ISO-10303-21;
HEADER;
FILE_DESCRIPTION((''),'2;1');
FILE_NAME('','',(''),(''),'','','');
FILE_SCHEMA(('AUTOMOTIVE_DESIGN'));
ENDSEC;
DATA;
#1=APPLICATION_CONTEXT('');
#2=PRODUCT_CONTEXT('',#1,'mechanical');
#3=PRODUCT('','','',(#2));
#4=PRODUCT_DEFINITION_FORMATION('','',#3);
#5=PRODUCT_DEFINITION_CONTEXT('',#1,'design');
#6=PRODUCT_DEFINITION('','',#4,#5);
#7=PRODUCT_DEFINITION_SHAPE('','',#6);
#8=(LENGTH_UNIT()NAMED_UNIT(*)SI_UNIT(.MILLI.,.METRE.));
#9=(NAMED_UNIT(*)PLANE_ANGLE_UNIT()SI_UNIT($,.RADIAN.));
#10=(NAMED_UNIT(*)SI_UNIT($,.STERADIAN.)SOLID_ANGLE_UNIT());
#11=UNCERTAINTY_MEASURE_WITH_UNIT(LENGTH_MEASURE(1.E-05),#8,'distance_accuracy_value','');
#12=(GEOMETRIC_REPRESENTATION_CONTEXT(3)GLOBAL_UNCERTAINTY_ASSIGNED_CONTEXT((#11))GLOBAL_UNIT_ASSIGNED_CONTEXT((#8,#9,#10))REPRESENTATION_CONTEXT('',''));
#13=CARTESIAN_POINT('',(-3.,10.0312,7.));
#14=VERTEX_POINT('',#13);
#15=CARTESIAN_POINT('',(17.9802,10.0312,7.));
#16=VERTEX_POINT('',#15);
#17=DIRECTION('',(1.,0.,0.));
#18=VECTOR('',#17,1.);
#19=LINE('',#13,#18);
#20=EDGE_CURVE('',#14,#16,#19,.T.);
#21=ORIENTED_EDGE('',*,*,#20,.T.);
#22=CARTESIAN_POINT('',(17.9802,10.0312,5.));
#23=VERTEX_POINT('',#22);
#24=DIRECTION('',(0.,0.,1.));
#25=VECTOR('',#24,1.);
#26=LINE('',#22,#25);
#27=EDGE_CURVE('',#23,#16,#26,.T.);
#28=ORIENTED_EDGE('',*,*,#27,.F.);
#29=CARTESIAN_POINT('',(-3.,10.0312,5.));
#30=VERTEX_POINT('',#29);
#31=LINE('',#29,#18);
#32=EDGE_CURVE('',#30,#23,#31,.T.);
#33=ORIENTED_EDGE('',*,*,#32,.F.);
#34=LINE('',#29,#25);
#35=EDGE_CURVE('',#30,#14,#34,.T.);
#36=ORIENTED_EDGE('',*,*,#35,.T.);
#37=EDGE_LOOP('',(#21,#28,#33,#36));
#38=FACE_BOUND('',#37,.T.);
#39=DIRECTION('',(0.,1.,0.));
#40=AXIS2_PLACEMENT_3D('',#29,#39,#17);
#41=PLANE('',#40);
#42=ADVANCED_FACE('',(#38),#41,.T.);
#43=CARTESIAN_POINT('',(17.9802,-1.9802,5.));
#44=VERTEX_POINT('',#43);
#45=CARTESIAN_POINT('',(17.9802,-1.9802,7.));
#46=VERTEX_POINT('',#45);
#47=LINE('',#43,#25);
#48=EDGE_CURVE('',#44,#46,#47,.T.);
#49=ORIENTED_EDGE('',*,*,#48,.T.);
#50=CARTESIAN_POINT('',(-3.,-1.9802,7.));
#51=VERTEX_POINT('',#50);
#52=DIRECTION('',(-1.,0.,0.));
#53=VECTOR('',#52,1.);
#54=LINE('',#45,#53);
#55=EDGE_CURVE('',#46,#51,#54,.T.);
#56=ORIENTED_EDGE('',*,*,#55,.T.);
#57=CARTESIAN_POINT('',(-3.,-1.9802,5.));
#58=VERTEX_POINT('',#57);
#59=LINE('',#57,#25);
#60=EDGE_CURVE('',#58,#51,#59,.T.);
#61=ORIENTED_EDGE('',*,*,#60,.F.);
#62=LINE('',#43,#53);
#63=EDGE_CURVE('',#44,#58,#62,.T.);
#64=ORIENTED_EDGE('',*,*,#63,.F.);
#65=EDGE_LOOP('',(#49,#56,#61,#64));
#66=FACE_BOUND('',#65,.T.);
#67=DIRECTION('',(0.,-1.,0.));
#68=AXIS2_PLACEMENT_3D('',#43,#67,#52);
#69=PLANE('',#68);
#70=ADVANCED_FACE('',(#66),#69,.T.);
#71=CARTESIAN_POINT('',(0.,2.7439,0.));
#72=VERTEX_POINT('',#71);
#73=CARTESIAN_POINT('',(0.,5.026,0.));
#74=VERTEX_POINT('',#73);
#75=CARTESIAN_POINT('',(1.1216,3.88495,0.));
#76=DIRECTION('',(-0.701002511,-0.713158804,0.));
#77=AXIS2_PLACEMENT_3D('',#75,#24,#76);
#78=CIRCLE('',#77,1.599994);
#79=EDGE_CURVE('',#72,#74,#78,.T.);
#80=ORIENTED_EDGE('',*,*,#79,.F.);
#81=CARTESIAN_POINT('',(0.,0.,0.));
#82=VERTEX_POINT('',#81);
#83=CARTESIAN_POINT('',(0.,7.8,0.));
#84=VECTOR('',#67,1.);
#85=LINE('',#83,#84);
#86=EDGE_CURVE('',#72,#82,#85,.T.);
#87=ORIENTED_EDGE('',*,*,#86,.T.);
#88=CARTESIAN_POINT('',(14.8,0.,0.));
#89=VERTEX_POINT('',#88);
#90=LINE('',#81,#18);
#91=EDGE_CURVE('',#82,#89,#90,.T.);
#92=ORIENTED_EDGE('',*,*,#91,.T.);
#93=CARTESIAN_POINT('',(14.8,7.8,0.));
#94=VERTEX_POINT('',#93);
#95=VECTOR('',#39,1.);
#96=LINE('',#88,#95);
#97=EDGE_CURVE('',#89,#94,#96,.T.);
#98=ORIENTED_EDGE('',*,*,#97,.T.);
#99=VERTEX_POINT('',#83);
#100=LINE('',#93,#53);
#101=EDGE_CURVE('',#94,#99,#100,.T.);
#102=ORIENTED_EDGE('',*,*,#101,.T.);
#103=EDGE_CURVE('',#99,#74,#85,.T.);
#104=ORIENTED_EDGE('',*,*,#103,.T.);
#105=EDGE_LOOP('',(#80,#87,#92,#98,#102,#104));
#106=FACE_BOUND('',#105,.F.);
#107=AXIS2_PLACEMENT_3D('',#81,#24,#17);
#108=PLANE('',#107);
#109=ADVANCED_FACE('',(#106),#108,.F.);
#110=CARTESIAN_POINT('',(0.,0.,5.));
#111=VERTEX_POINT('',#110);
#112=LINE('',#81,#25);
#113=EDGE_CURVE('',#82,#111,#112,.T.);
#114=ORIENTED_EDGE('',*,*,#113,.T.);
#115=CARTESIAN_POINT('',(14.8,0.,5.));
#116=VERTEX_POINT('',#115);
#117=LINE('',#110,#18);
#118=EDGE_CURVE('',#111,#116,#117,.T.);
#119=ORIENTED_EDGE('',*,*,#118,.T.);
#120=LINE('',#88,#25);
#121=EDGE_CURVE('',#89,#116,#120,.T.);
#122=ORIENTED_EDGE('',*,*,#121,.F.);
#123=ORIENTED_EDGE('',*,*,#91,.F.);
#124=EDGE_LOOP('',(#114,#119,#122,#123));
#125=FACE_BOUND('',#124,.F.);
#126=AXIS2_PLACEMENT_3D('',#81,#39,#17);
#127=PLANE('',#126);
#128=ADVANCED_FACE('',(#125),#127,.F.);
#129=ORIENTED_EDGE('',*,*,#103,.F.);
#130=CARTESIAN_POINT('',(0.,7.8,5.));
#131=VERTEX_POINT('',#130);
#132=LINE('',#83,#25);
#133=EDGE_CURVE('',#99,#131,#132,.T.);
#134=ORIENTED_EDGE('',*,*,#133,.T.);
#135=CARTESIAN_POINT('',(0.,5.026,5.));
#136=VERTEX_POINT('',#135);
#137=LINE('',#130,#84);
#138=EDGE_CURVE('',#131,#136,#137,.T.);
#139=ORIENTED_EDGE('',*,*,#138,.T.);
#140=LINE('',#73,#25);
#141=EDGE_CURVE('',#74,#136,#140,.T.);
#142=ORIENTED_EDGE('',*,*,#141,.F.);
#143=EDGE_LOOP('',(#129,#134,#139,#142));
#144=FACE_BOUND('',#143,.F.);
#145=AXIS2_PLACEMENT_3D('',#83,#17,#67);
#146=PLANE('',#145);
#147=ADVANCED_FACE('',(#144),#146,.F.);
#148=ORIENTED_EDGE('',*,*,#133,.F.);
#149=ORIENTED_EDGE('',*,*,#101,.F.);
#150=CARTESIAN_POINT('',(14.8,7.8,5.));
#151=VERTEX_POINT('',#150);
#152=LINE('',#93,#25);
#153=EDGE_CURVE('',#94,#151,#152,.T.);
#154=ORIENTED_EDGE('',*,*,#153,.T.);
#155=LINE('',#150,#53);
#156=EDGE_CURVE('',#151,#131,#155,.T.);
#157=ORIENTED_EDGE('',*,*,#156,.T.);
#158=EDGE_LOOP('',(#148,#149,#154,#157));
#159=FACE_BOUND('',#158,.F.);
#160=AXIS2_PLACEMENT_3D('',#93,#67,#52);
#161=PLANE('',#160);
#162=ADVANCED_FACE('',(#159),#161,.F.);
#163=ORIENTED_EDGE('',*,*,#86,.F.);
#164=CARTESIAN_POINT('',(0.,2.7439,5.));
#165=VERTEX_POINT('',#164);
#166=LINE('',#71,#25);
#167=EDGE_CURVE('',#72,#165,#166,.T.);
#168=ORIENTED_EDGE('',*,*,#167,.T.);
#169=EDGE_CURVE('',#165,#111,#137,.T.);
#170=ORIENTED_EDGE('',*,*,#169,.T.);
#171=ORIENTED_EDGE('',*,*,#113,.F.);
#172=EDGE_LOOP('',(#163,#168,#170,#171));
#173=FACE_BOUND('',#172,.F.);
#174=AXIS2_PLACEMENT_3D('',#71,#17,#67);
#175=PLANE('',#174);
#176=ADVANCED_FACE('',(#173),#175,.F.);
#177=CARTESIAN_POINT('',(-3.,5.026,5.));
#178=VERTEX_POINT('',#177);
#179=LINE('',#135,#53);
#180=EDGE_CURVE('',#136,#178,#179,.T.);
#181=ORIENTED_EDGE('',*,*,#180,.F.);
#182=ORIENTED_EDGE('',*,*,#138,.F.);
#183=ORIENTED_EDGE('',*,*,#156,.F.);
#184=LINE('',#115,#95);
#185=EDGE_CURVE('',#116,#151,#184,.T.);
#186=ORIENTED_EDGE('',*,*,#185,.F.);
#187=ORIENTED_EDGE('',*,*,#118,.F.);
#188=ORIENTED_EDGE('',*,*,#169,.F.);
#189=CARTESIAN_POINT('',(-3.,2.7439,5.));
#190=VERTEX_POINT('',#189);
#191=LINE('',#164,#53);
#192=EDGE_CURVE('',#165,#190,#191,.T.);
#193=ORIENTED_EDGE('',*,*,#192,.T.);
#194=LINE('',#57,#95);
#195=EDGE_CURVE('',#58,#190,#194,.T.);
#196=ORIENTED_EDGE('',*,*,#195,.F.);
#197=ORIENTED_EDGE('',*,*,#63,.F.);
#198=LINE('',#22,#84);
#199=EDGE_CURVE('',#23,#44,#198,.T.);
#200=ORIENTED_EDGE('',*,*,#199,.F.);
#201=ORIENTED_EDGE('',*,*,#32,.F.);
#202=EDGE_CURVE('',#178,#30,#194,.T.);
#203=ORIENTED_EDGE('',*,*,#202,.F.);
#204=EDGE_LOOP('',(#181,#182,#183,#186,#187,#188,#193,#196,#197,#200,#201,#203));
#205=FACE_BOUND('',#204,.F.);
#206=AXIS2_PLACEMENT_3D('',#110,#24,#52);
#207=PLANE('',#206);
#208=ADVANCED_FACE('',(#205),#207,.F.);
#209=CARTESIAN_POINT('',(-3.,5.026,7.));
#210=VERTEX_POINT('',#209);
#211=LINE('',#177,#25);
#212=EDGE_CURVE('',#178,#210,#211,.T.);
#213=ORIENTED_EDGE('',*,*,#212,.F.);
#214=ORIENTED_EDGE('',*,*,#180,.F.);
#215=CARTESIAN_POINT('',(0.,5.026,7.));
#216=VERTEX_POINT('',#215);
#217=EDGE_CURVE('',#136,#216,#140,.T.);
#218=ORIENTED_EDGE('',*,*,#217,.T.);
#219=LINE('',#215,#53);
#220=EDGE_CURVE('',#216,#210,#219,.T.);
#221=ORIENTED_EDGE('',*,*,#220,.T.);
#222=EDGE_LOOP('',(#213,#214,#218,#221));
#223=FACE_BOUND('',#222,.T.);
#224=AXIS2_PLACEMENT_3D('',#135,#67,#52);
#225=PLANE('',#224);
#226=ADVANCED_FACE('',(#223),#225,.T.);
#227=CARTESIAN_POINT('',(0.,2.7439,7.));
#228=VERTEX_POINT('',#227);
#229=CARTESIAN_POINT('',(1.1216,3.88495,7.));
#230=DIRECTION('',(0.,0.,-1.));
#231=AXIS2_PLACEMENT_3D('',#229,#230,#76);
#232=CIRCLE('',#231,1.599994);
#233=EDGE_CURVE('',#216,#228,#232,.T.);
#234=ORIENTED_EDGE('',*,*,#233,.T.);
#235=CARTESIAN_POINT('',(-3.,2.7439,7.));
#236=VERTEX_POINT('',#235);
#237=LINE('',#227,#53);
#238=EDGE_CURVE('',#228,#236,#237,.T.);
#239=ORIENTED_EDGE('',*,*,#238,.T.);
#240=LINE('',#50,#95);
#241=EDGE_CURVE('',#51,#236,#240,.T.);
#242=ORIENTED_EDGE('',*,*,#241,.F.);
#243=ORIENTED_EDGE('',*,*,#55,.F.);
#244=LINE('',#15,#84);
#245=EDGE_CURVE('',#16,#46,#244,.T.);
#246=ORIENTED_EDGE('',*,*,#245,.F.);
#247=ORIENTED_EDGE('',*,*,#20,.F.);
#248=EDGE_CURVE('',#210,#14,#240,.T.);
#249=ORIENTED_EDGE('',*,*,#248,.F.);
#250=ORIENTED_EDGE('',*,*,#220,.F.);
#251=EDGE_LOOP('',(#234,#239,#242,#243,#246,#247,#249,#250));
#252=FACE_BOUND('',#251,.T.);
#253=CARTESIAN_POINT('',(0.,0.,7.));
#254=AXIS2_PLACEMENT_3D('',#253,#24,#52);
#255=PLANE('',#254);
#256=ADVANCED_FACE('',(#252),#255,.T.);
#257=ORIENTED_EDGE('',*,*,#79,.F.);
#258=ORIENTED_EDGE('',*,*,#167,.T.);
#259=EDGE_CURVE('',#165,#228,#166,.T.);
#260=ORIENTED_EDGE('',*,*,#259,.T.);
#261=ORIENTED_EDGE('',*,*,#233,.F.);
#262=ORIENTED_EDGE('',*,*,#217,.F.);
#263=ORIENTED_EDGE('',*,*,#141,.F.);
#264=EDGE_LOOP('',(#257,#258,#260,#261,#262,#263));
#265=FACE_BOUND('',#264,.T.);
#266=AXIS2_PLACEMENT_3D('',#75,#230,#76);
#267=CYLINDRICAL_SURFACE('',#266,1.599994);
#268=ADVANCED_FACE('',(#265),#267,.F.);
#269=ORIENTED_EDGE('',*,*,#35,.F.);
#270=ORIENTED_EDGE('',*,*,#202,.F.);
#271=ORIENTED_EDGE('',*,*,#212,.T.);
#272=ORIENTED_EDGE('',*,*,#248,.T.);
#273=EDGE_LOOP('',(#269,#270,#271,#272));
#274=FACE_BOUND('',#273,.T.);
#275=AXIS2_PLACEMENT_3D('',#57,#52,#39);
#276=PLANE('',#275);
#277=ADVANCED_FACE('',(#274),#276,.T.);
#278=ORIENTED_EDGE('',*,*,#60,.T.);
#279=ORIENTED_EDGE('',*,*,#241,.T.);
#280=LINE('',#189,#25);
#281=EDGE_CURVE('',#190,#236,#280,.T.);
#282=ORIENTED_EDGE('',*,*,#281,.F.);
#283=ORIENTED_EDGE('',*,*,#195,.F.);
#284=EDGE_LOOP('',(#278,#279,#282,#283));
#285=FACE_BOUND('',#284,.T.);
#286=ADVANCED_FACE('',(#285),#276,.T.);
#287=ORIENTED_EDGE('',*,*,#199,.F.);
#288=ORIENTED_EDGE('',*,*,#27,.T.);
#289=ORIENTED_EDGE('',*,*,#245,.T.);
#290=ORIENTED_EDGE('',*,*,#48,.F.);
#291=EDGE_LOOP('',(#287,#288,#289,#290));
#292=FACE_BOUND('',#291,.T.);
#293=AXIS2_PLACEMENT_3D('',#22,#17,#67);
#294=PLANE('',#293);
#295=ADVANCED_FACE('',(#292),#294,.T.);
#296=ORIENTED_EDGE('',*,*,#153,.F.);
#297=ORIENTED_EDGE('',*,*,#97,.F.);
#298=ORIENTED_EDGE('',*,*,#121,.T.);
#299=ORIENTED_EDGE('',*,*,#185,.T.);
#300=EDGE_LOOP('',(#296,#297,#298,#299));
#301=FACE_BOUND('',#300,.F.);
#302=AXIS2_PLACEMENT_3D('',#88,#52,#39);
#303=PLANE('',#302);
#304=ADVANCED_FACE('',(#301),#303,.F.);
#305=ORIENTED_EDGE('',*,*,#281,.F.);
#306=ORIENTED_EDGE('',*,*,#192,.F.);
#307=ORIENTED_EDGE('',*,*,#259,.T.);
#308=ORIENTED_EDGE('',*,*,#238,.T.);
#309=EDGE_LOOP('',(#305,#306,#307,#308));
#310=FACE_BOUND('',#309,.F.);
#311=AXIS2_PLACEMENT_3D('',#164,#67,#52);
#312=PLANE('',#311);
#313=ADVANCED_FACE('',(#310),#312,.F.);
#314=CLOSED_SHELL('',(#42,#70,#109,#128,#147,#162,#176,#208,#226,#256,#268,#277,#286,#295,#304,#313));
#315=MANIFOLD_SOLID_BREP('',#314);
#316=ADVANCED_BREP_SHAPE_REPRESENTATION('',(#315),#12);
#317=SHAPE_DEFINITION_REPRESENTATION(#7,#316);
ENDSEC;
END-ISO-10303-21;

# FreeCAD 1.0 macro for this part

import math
import FreeCAD as App
import Part
import Sketcher

V = App.Vector

doc = App.newDocument("Part")
body = doc.addObject("PartDesign::Body", "Body")

# Sketch on XY plane
sketch1 = doc.addObject("Sketcher::SketchObject", "Sketch")
body.addObject(sketch1)
sketch1.AttachmentSupport = (doc.XY_Plane, [""])
sketch1.MapMode = "FlatFace"
sketch1.addGeometry([
    Part.LineSegment(V(0, 2.7, 0), V(0, 0, 0)),  # 0
    Part.LineSegment(V(0, 0, 0), V(14.8, 0, 0)),  # 1
    Part.LineSegment(V(14.8, 0, 0), V(14.8, 7.8, 0)),  # 2
    Part.LineSegment(V(14.8, 7.8, 0), V(0, 7.8, 0)),  # 3
    Part.LineSegment(V(0, 7.8, 0), V(0, 5, 0)),  # 4
    Part.ArcOfCircle(Part.Circle(V(1.1, 3.9, 0), V(0, 0, 1), 1.6), math.radians(-135), math.radians(135)),  # 5
], False)
sketch1.addConstraint([
    Sketcher.Constraint("Coincident", 0, 2, 1, 1),
    Sketcher.Constraint("Coincident", 1, 2, 2, 1),
    Sketcher.Constraint("Coincident", 2, 2, 3, 1),
    Sketcher.Constraint("Coincident", 3, 2, 4, 1),
    Sketcher.Constraint("Coincident", 4, 2, 5, 2),
    Sketcher.Constraint("Coincident", 5, 1, 0, 1),
    Sketcher.Constraint("Vertical", 0),
    Sketcher.Constraint("Horizontal", 1),
    Sketcher.Constraint("Vertical", 2),
    Sketcher.Constraint("Horizontal", 3),
    Sketcher.Constraint("Vertical", 4),
    Sketcher.Constraint("Coincident", 0, 2, -1, 1),
    Sketcher.Constraint("PointOnObject", 3, 2, -2),
    Sketcher.Constraint("Radius", 5, 1.6),
    Sketcher.Constraint("DistanceX", 1, 1, 1, 2, 14.8),
    Sketcher.Constraint("DistanceY", 2, 1, 2, 2, 7.8),
    Sketcher.Constraint("DistanceY", 0, 2, 0, 1, 2.744),
    Sketcher.Constraint("DistanceY", 4, 2, 4, 1, 2.774),
])
pad1 = doc.addObject("PartDesign::Pad", "Pad")
body.addObject(pad1)
pad1.Profile = sketch1
pad1.Length = 5

# Sketch on XY plane
sketch2 = doc.addObject("Sketcher::SketchObject", "Sketch001")
body.addObject(sketch2)
sketch2.AttachmentSupport = (doc.XY_Plane, [""])
sketch2.MapMode = "FlatFace"
sketch2.AttachmentOffset = App.Placement(V(0, 0, 5), App.Rotation())
sketch2.addGeometry([
    Part.LineSegment(V(18, 10, 0), V(-3, 10, 0)),
    Part.LineSegment(V(-3, 10, 0), V(-3, -2, 0)),
    Part.LineSegment(V(-3, -2, 0), V(18, -2, 0)),
    Part.LineSegment(V(18, -2, 0), V(18, 10, 0)),
], False)
sketch2.addConstraint([
    Sketcher.Constraint("Coincident", 0, 2, 1, 1),
    Sketcher.Constraint("Coincident", 1, 2, 2, 1),
    Sketcher.Constraint("Coincident", 2, 2, 3, 1),
    Sketcher.Constraint("Coincident", 3, 2, 0, 1),
    Sketcher.Constraint("Horizontal", 0),
    Sketcher.Constraint("Vertical", 1),
    Sketcher.Constraint("Horizontal", 2),
    Sketcher.Constraint("Vertical", 3),
    Sketcher.Constraint("DistanceX", 0, 2, -1, 1, 3.0),
    Sketcher.Constraint("DistanceX", 0, 2, 0, 1, 20.9802),
    Sketcher.Constraint("DistanceY", 1, 2, 1, 1, 12.0114),
    Sketcher.Constraint("DistanceY", -1, 1, 0, 2, 10.0312),
])
pad2 = doc.addObject("PartDesign::Pad", "Pad001")
body.addObject(pad2)
pad2.Profile = sketch2
pad2.Length = 2

# Sketch on XY plane
sketch3 = doc.addObject("Sketcher::SketchObject", "Sketch002")
body.addObject(sketch3)
sketch3.AttachmentSupport = (doc.XY_Plane, [""])
sketch3.MapMode = "FlatFace"
sketch3.addGeometry([
    Part.LineSegment(V(0, 5, 0), V(0, 2.7, 0)),
    Part.ArcOfCircle(Part.Circle(V(1.1, 3.9, 0), V(0, 0, 1), 1.6), math.radians(-135), math.radians(135)),
], False)
sketch3.addConstraint([
    Sketcher.Constraint("Coincident", 0, 1, 1, 2),
    Sketcher.Constraint("Coincident", 1, 1, 0, 2),
    Sketcher.Constraint("Vertical", 0),
    Sketcher.Constraint("PointOnObject", 0, 1, -2),
    Sketcher.Constraint("Radius", 1, 1.6),
    Sketcher.Constraint("DistanceY", 0, 2, 0, 1, 2.282),
    Sketcher.Constraint("DistanceY", -1, 1, 1, 3, 3.885),
])
pocket1 = doc.addObject("PartDesign::Pocket", "Pocket")
body.addObject(pocket1)
pocket1.Profile = sketch3
pocket1.Length = 13
pocket1.Reversed = True

# Sketch on XY plane
sketch4 = doc.addObject("Sketcher::SketchObject", "Sketch003")
body.addObject(sketch4)
sketch4.AttachmentSupport = (doc.XY_Plane, [""])
sketch4.MapMode = "FlatFace"
sketch4.AttachmentOffset = App.Placement(V(0, 0, 5), App.Rotation())
sketch4.addGeometry([
    Part.LineSegment(V(-3, 5, 0), V(0, 5, 0)),
    Part.LineSegment(V(0, 5, 0), V(0, 2.7, 0)),
    Part.LineSegment(V(0, 2.7, 0), V(-3, 2.7, 0)),
    Part.LineSegment(V(-3, 2.7, 0), V(-3, 5, 0)),
], False)
sketch4.addConstraint([
    Sketcher.Constraint("Coincident", 0, 2, 1, 1),
    Sketcher.Constraint("Coincident", 1, 2, 2, 1),
    Sketcher.Constraint("Coincident", 2, 2, 3, 1),
    Sketcher.Constraint("Coincident", 3, 2, 0, 1),
    Sketcher.Constraint("Horizontal", 0),
    Sketcher.Constraint("Vertical", 1),
    Sketcher.Constraint("Horizontal", 2),
    Sketcher.Constraint("Vertical", 3),
    Sketcher.Constraint("PointOnObject", 0, 2, -2),
    Sketcher.Constraint("DistanceX", 0, 1, 0, 2, 3.0),
    Sketcher.Constraint("DistanceY", 1, 2, 1, 1, 2.282),
    Sketcher.Constraint("DistanceY", -1, 1, 0, 2, 5.026),
])
pocket2 = doc.addObject("PartDesign::Pocket", "Pocket001")
body.addObject(pocket2)
pocket2.Profile = sketch4
pocket2.Length = 2
pocket2.Reversed = True

doc.recompute()
